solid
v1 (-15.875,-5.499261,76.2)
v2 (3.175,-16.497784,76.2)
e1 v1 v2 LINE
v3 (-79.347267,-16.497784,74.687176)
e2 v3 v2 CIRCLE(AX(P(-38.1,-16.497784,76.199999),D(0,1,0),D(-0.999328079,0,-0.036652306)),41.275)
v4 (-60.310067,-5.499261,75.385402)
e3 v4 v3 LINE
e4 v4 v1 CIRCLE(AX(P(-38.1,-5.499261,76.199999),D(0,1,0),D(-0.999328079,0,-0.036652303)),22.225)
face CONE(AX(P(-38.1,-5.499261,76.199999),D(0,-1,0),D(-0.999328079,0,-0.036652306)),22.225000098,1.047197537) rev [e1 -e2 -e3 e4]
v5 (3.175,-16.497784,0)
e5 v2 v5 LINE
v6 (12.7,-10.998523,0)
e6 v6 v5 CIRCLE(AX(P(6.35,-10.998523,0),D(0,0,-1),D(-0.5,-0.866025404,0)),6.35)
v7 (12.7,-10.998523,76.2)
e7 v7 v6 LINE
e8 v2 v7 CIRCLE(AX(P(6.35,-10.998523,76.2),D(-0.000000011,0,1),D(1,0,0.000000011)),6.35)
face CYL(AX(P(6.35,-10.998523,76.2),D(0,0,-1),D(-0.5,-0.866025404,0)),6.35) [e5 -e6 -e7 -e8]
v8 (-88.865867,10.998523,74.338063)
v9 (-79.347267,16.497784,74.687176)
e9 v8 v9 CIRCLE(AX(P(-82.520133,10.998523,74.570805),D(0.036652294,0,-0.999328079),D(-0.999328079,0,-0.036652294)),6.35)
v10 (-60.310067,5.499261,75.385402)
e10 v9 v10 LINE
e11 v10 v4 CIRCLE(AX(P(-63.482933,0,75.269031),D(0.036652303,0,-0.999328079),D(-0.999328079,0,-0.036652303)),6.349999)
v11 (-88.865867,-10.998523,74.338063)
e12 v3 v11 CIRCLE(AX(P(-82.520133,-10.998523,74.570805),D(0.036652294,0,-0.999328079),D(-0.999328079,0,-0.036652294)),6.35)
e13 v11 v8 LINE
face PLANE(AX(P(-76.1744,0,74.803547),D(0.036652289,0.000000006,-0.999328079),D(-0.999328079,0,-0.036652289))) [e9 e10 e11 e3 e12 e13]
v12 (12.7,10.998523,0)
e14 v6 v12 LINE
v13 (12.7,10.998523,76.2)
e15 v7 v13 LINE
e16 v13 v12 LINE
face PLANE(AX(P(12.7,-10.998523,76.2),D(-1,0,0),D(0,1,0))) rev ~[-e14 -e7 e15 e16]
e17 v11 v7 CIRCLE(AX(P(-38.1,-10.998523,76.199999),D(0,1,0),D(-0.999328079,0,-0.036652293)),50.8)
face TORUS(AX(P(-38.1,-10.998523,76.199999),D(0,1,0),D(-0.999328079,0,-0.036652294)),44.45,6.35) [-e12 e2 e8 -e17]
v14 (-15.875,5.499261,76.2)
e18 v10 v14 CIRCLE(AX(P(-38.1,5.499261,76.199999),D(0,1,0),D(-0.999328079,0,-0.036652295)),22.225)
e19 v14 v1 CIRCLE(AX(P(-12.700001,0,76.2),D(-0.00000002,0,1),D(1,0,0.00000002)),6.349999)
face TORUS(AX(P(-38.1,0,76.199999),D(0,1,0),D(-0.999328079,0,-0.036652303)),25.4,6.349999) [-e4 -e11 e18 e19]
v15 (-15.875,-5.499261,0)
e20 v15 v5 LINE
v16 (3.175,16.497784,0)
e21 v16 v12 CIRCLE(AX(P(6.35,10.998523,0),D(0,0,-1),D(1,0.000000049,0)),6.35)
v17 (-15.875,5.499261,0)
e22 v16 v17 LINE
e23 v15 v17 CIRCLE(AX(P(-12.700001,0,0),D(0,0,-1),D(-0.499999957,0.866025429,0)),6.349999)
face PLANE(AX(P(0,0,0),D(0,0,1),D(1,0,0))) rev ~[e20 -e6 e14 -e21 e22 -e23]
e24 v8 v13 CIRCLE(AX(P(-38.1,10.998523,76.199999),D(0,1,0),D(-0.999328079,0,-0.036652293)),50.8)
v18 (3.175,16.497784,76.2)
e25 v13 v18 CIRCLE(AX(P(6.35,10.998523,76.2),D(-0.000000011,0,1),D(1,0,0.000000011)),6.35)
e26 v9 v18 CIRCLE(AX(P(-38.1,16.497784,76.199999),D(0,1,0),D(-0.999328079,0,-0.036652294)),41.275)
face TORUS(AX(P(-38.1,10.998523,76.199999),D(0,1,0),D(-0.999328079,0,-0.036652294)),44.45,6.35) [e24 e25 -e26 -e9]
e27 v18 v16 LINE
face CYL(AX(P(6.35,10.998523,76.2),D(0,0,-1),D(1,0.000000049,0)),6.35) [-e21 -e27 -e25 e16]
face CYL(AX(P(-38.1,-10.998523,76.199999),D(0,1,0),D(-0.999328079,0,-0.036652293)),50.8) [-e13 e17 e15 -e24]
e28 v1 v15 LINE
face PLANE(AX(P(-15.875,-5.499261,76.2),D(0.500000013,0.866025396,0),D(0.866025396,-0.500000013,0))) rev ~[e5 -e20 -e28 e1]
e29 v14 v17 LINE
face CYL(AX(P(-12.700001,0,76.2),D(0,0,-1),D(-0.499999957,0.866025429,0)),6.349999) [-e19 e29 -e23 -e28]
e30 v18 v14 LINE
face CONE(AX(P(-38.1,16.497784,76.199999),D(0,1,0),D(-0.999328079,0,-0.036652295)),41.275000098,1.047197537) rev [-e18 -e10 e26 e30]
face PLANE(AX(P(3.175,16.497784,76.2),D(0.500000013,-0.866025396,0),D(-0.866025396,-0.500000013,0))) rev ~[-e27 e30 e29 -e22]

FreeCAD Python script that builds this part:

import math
import FreeCAD as App
import Part
import Sketcher
from FreeCAD import Vector
Q = App.Units.Quantity

doc = App.newDocument("Part")
params = doc.addObject("Spreadsheet::Sheet", "Params")
for row, (alias, value) in enumerate([
    ("sketch1_radius", "0.25 in"),
    ("sketch2_radius", "1.5 in"),
    ("sketch2_height", "3 in"),
], start=1):
    params.set(f"A{row}", alias)
    params.set(f"B{row}", "=" + value)
    params.setAlias(f"B{row}", alias)

body = doc.addObject("PartDesign::Body", "Body")

# Sketch on XY plane
sketch1 = doc.addObject("Sketcher::SketchObject", "Sketch")
body.addObject(sketch1)
sketch1.AttachmentSupport = (doc.XY_Plane, [""])
sketch1.MapMode = "FlatFace"
sketch1.addGeometry([
    Part.LineSegment(Vector(13, -11, 0), Vector(13, 11, 0)),  # 0
    Part.ArcOfCircle(Part.Circle(Vector(6, 11, 0), Vector(0, 0, 1), 6), math.radians(0), math.radians(120)),  # 1
    Part.LineSegment(Vector(3, 16, 0), Vector(-16, 5, 0)),  # 2
    Part.ArcOfCircle(Part.Circle(Vector(-13, 0, 0), Vector(0, 0, 1), 6), math.radians(120), math.radians(240)),  # 3
    Part.LineSegment(Vector(-16, -5, 0), Vector(3, -16, 0)),  # 4
    Part.ArcOfCircle(Part.Circle(Vector(6, -11, 0), Vector(0, 0, 1), 6), math.radians(-120), math.radians(0)),  # 5
], False)
sketch1.addConstraint([
    Sketcher.Constraint("Tangent", 0, 2, 1, 1),
    Sketcher.Constraint("Tangent", 1, 2, 2, 1),
    Sketcher.Constraint("Tangent", 2, 2, 3, 1),
    Sketcher.Constraint("Tangent", 3, 2, 4, 1),
    Sketcher.Constraint("Tangent", 4, 2, 5, 1),
    Sketcher.Constraint("Tangent", 5, 2, 0, 1),
    Sketcher.Constraint("Vertical", 0),
    Sketcher.Constraint("Equal", 1, 3),
    Sketcher.Constraint("Equal", 3, 5),
    Sketcher.Constraint("Symmetric", 2, 2, 3, 2, -1),
    Sketcher.Constraint("Radius", 1, Q("0.25 in")),
    Sketcher.Constraint("Angle", 2, Q("-149.999999 deg")),
    Sketcher.Constraint("DistanceX", 3, 3, 0, 2, Q("1 in")),
    Sketcher.Constraint("DistanceX", 3, 3, -1, 1, Q("0.5 in")),
])
sketch1.setExpression("Constraints[10]", "Params.sketch1_radius")

# Sketch on XZ plane
sketch2 = doc.addObject("Sketcher::SketchObject", "Sketch001")
body.addObject(sketch2)
sketch2.AttachmentSupport = (doc.XZ_Plane, [""])
sketch2.MapMode = "FlatFace"
sketch2.addGeometry([
    Part.ArcOfCircle(Part.Circle(Vector(-38, 76, 0), Vector(0, 0, 1), 38), math.radians(0), math.radians(182)),
    Part.LineSegment(Vector(0, 76, 0), Vector(0, 0, 0)),
], False)
sketch2.addConstraint([
    Sketcher.Constraint("Tangent", 0, 1, 1, 1),
    Sketcher.Constraint("Vertical", 1),
    Sketcher.Constraint("Coincident", 1, 2, -1, 1),
    Sketcher.Constraint("Radius", 0, Q("1.5 in")),
    Sketcher.Constraint("DistanceY", 1, 2, 1, 1, Q("3 in")),
    Sketcher.Constraint("DistanceX", 0, 2, -1, 1, 76.1744),
])
sketch2.setExpression("Constraints[3]", "Params.sketch2_radius")
sketch2.setExpression("Constraints[4]", "Params.sketch2_height")
doc.recompute()

additivepipe = doc.addObject("PartDesign::AdditivePipe", "AdditivePipe")
body.addObject(additivepipe)
additivepipe.Profile = sketch1
additivepipe.Spine = (sketch2, ["Edge1", "Edge2"])

doc.recompute()
